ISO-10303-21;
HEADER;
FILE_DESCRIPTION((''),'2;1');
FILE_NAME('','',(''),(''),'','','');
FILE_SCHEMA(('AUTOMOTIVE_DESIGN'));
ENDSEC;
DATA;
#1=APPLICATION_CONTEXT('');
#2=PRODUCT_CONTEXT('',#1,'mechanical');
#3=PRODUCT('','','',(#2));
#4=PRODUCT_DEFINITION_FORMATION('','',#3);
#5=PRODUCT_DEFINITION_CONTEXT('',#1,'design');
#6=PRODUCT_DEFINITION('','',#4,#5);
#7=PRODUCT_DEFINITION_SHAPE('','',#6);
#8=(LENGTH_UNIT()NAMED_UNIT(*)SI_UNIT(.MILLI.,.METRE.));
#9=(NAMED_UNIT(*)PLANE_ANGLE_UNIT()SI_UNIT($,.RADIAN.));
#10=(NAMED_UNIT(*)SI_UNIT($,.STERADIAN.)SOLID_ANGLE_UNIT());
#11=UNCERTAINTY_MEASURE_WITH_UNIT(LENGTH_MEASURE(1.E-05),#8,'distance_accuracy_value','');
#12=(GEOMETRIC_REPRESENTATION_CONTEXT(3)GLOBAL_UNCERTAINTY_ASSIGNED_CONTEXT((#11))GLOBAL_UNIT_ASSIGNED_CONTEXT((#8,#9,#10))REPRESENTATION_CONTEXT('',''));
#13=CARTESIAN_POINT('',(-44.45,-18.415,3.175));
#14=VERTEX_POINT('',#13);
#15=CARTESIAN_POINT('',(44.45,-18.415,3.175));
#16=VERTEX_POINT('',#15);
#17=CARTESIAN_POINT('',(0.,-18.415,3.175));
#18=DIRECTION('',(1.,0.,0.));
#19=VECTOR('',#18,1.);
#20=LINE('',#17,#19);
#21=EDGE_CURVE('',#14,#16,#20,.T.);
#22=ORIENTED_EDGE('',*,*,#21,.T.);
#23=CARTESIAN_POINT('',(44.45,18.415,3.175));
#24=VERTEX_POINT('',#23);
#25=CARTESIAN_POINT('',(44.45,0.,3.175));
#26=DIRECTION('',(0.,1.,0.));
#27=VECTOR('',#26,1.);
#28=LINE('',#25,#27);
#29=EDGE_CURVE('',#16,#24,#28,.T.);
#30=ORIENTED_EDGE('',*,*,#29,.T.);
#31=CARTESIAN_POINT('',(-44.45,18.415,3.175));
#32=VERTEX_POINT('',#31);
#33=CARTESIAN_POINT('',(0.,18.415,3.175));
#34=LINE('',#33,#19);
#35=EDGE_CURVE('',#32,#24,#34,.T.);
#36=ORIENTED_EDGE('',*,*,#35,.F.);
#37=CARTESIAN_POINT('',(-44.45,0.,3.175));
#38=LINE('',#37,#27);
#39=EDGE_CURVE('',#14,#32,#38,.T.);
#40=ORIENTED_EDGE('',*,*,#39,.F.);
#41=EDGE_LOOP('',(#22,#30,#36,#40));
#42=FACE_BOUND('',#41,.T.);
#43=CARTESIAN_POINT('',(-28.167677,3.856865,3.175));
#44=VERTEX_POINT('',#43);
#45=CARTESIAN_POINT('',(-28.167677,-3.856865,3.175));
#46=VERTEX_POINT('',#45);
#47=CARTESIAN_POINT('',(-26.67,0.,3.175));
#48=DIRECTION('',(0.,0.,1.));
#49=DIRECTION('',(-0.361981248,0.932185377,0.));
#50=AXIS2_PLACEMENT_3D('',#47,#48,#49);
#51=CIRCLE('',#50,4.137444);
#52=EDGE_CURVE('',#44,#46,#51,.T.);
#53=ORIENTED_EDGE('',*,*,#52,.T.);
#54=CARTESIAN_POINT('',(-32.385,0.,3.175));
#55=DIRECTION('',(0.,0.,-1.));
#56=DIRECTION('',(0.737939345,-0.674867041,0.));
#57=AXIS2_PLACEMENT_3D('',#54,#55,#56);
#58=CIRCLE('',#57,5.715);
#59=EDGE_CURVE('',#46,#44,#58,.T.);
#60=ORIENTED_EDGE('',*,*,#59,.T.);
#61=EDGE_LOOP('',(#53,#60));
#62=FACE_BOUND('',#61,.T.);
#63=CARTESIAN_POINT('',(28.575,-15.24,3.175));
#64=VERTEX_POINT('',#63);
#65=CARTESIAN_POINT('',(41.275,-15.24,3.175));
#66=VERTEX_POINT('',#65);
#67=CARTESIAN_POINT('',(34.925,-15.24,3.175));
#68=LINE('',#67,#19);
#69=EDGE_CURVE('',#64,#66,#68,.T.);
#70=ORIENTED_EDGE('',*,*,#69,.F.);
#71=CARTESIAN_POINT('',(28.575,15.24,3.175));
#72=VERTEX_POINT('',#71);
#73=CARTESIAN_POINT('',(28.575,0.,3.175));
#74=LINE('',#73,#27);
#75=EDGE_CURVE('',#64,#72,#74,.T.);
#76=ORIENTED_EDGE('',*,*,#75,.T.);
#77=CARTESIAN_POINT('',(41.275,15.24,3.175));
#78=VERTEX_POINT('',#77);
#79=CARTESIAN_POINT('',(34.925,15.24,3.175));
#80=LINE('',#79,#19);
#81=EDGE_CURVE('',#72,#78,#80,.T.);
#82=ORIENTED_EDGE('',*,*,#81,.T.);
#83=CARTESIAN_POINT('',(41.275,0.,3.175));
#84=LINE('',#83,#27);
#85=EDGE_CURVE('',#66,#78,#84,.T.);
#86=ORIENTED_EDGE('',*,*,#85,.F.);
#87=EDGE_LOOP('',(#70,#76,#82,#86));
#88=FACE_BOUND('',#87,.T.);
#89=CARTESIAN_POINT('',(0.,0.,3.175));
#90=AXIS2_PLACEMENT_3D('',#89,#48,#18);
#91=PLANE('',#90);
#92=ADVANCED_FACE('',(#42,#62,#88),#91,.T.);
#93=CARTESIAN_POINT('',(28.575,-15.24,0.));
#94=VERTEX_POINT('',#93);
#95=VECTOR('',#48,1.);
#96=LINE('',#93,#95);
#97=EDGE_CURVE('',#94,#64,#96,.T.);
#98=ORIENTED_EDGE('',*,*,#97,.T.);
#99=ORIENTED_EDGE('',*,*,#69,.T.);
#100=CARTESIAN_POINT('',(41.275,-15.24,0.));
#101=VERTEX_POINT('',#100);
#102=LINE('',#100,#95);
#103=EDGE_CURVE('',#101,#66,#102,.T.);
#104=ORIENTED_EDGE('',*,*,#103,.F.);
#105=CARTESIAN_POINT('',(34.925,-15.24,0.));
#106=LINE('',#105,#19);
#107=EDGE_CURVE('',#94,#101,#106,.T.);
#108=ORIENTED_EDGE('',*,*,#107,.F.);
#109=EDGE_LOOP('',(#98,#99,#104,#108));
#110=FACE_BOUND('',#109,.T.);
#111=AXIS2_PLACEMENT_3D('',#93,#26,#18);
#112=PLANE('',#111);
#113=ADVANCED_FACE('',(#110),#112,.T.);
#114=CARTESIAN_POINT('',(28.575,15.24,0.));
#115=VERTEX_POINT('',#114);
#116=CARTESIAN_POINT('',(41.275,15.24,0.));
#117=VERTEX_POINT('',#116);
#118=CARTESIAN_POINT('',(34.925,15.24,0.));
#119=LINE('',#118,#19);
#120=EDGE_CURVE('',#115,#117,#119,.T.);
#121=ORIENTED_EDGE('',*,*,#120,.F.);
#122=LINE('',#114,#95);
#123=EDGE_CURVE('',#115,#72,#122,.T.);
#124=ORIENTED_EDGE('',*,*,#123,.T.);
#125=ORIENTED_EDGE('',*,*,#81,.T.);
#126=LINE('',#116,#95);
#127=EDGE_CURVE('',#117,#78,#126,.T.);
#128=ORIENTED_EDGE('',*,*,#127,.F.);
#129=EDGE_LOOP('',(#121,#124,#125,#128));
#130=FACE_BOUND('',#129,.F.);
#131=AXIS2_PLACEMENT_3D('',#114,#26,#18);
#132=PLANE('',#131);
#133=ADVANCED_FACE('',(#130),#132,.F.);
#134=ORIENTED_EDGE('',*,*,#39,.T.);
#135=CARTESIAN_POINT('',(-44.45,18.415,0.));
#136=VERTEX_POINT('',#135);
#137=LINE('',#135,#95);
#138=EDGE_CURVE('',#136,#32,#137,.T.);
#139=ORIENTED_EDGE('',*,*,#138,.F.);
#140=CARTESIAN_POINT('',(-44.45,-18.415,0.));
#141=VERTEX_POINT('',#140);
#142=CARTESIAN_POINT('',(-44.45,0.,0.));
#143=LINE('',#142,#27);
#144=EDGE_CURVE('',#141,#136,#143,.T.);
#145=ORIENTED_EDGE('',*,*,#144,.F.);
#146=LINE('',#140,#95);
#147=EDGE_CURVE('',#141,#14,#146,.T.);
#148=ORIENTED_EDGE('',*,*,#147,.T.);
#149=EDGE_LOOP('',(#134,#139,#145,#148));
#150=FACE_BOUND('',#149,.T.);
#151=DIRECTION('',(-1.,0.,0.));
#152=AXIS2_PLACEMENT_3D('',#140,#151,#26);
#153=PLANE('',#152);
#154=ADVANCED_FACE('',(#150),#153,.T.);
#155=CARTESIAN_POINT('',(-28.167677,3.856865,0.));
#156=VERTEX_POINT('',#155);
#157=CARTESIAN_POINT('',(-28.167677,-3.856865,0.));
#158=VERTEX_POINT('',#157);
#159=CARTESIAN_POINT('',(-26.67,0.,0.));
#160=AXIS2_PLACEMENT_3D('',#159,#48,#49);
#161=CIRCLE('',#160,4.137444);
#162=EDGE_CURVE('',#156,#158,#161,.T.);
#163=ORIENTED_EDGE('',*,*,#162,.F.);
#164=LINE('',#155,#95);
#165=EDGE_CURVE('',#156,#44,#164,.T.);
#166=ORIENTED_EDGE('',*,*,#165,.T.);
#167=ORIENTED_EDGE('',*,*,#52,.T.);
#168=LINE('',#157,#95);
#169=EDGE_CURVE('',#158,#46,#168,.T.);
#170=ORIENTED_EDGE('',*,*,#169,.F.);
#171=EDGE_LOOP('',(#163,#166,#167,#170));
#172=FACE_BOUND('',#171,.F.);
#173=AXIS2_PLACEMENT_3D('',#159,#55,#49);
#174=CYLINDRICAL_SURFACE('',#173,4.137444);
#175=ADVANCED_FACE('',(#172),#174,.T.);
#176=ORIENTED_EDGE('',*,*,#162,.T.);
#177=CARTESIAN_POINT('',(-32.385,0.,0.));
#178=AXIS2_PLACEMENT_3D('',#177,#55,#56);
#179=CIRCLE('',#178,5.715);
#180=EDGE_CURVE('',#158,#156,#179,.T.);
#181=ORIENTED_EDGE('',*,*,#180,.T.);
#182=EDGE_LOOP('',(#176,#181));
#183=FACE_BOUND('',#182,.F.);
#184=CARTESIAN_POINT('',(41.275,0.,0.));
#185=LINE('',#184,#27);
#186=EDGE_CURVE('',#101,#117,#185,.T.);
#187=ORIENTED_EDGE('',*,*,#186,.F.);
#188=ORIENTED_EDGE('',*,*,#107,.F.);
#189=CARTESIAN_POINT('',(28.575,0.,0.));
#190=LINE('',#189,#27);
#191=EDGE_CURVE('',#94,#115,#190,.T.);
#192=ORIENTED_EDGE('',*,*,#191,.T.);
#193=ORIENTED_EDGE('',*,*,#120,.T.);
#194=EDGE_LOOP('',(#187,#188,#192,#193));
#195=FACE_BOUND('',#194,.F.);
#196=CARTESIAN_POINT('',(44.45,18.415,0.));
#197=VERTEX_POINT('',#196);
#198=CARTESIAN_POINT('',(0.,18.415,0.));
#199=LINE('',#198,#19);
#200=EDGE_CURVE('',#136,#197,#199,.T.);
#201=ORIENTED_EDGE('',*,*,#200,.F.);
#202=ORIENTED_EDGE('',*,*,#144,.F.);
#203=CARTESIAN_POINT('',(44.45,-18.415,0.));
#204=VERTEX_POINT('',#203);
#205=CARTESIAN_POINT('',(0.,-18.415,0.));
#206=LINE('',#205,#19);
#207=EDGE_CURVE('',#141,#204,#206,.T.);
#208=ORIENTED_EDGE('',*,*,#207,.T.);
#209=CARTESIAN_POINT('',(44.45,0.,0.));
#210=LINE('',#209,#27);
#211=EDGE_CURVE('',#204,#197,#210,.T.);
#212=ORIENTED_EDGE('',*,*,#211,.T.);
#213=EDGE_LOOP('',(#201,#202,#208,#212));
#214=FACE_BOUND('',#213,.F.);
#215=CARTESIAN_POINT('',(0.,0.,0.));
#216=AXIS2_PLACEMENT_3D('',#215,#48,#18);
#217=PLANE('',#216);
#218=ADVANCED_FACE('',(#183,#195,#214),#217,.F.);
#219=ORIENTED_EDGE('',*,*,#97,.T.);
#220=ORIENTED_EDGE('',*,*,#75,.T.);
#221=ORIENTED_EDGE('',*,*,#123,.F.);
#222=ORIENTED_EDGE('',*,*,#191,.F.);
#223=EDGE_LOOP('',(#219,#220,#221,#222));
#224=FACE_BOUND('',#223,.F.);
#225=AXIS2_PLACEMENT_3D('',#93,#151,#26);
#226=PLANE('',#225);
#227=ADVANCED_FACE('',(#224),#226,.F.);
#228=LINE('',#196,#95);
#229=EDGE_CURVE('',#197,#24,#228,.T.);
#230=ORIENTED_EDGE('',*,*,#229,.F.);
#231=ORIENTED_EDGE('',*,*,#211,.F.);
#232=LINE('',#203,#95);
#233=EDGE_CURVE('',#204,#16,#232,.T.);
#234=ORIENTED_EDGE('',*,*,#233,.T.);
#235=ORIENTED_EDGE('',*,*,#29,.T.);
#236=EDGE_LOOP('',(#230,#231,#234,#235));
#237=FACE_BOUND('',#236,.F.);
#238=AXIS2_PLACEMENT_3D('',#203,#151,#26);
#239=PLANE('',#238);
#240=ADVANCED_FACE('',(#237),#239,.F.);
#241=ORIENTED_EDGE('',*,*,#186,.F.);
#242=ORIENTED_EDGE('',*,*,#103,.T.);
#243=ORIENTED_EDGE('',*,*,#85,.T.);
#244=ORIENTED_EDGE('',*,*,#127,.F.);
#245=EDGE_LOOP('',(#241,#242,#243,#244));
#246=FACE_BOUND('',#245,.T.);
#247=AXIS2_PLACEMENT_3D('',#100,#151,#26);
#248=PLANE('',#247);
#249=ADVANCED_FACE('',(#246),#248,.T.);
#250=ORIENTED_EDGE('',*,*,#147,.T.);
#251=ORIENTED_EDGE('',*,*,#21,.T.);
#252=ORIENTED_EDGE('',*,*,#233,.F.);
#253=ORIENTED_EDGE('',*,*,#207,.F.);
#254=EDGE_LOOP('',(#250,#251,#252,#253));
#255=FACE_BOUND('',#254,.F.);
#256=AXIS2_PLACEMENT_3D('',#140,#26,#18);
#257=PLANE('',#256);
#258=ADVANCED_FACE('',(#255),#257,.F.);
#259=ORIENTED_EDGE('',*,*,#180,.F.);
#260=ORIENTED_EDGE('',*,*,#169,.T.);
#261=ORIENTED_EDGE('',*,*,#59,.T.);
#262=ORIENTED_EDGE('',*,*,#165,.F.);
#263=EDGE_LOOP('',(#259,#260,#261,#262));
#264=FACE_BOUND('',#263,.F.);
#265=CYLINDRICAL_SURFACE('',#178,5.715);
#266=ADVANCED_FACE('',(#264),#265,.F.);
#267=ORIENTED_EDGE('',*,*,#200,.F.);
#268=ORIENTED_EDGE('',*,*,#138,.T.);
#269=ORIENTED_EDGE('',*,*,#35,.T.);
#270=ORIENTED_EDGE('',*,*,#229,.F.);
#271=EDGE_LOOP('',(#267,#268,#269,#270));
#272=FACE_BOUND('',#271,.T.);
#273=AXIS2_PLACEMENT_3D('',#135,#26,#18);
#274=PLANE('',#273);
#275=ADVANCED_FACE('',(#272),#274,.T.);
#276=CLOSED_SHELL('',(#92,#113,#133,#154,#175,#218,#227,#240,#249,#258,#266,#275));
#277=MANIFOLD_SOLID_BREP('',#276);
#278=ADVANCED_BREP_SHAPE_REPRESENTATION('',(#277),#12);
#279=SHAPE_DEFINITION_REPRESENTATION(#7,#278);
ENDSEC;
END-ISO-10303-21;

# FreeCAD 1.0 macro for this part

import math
import FreeCAD as App
import Part
import Sketcher

V = App.Vector
Q = App.Units.Quantity


def add_polygon(sketch, points):
    """Adds a closed chain of lines whose ends are joined by coincident constraints."""
    first, n = sketch.GeometryCount, len(points)
    for a, b in zip(points, points[1:] + points[:1]):
        sketch.addGeometry(Part.LineSegment(App.Vector(*a, 0), App.Vector(*b, 0)), False)
    for i in range(n):
        sketch.addConstraint(Sketcher.Constraint("Coincident", first + i, 2, first + (i + 1) % n, 1))

doc = App.newDocument("Part")
body = doc.addObject("PartDesign::Body", "Body")

sketch1 = doc.addObject("Sketcher::SketchObject", "Sketch")
body.addObject(sketch1)
sketch1.AttachmentSupport = (doc.XY_Plane, [""])
sketch1.MapMode = "FlatFace"
add_polygon(sketch1, [(-44.45, 18.415), (-44.45, -18.415), (44.45, -18.415), (44.45, 18.415)])
sketch1.addGeometry(Part.ArcOfCircle(Part.Circle(V(-26.67, 0, 0), V(0, 0, 1), 4.137444), math.radians(111.221921), math.radians(248.778079)), False)
sketch1.addGeometry(Part.ArcOfCircle(Part.Circle(V(-32.385, 0, 0), V(0, 0, 1), 5.715), math.radians(42.443826), math.radians(317.556174)), False)
add_polygon(sketch1, [(41.275, -15.24), (28.575, -15.24), (28.575, 15.24), (41.275, 15.24)])
sketch1.addConstraint([
    Sketcher.Constraint("Coincident", 4, 1, 5, 1),
    Sketcher.Constraint("Coincident", 5, 2, 4, 2),
    Sketcher.Constraint("Vertical", 0),
    Sketcher.Constraint("Horizontal", 1),
    Sketcher.Constraint("Vertical", 2),
    Sketcher.Constraint("Horizontal", 3),
    Sketcher.Constraint("Horizontal", 6),
    Sketcher.Constraint("Vertical", 7),
    Sketcher.Constraint("Horizontal", 8),
    Sketcher.Constraint("Vertical", 9),
    Sketcher.Constraint("Symmetric", 0, 2, 2, 2, -1, 1),
    Sketcher.Constraint("Symmetric", 4, 1, 5, 2, -1),
    Sketcher.Constraint("DistanceX", 1, 1, 1, 2, Q("3.5 in")),
    Sketcher.Constraint("DistanceX", 6, 2, 6, 1, Q("0.5 in")),
    Sketcher.Constraint("DistanceY", 7, 1, 7, 2, Q("1.2 in")),
    Sketcher.Constraint("Radius", 5, Q("0.225 in")),
    Sketcher.Constraint("DistanceY", 0, 2, 0, 1, Q("1.45 in")),
    Sketcher.Constraint("DistanceY", 6, 2, -1, 1, Q("0.6 in")),
    Sketcher.Constraint("DistanceX", 0, 2, 4, 3, Q("0.7 in")),
    Sketcher.Constraint("DistanceX", 5, 3, -1, 1, Q("1.275 in")),
    Sketcher.Constraint("DistanceX", -1, 1, 6, 2, Q("1.125 in")),
    Sketcher.Constraint("Radius", 4, 4.137444),
])
pad1 = doc.addObject("PartDesign::Pad", "Pad")
body.addObject(pad1)
pad1.Profile = sketch1
pad1.Length = Q("0.125 in")

doc.recompute()
